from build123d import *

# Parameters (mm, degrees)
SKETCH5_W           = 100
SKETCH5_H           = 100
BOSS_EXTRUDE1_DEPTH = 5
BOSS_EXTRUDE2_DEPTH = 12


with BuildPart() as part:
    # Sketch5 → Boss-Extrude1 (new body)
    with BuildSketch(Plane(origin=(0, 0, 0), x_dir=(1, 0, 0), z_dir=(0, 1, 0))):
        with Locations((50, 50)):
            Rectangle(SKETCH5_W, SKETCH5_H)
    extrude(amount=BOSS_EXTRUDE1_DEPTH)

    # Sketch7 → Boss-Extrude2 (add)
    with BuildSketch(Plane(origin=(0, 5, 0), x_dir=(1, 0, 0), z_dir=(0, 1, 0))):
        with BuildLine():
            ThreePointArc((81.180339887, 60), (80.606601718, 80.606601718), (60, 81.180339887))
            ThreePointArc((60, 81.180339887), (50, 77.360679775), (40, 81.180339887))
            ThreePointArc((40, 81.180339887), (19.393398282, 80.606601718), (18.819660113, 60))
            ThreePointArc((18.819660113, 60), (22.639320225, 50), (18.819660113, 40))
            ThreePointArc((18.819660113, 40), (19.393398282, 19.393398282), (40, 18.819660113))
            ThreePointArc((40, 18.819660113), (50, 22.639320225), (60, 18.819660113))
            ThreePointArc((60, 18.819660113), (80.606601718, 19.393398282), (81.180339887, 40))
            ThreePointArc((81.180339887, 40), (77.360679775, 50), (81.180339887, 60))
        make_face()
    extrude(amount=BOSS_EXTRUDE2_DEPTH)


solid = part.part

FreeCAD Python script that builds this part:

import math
import FreeCAD as App
import Part
import Sketcher
from FreeCAD import Vector

doc = App.newDocument("Part")
body = doc.addObject("PartDesign::Body", "Body")

# Sketch on XZ plane
sketch1 = doc.addObject("Sketcher::SketchObject", "Sketch")
body.addObject(sketch1)
sketch1.AttachmentSupport = (doc.XZ_Plane, [""])
sketch1.MapMode = "FlatFace"
sketch1.addGeometry([
    Part.LineSegment(Vector(0, -100, 0), Vector(0, 0, 0)),
    Part.LineSegment(Vector(0, 0, 0), Vector(100, 0, 0)),
    Part.LineSegment(Vector(100, 0, 0), Vector(100, -100, 0)),
    Part.LineSegment(Vector(100, -100, 0), Vector(0, -100, 0)),
], False)
sketch1.addConstraint([
    Sketcher.Constraint("Coincident", 0, 2, 1, 1),
    Sketcher.Constraint("Coincident", 1, 2, 2, 1),
    Sketcher.Constraint("Coincident", 2, 2, 3, 1),
    Sketcher.Constraint("Coincident", 3, 2, 0, 1),
    Sketcher.Constraint("Vertical", 0),
    Sketcher.Constraint("Horizontal", 1),
    Sketcher.Constraint("Vertical", 2),
    Sketcher.Constraint("Horizontal", 3),
    Sketcher.Constraint("Coincident", 0, 2, -1, 1),
    Sketcher.Constraint("Equal", 3, 0),
    Sketcher.Constraint("DistanceX", 1, 1, 1, 2, 100.0),
])
pad1 = doc.addObject("PartDesign::Pad", "Pad")
body.addObject(pad1)
pad1.Profile = sketch1
pad1.Length = 5
pad1.Reversed = True

# Sketch on XZ plane
sketch2 = doc.addObject("Sketcher::SketchObject", "Sketch001")
body.addObject(sketch2)
sketch2.AttachmentSupport = (doc.XZ_Plane, [""])
sketch2.MapMode = "FlatFace"
sketch2.AttachmentOffset = App.Placement(Vector(0, 0, -5), App.Rotation())
sketch2.addGeometry([
    Part.ArcOfCircle(Part.Circle(Vector(70, -70, 0), Vector(0, 0, 1), 15), math.radians(-131.810315), math.radians(41.810315)),  # 0
    Part.ArcOfCircle(Part.Circle(Vector(50, -92.36068, 0), Vector(0, 0, 1), 15), math.radians(48.189685), math.radians(131.810315)),  # 1
    Part.ArcOfCircle(Part.Circle(Vector(30, -70, 0), Vector(0, 0, 1), 15), math.radians(138.189685), math.radians(311.810315)),  # 2
    Part.ArcOfCircle(Part.Circle(Vector(7.63932, -50, 0), Vector(0, 0, 1), 15), math.radians(-41.810315), math.radians(41.810315)),  # 3
    Part.ArcOfCircle(Part.Circle(Vector(30, -30, 0), Vector(0, 0, 1), 15), math.radians(48.189685), math.radians(221.810315)),  # 4
    Part.ArcOfCircle(Part.Circle(Vector(50, -7.63932, 0), Vector(0, 0, 1), 15), math.radians(-131.810315), math.radians(-48.189685)),  # 5
    Part.ArcOfCircle(Part.Circle(Vector(70, -30, 0), Vector(0, 0, 1), 15), math.radians(-41.810315), math.radians(131.810315)),  # 6
    Part.ArcOfCircle(Part.Circle(Vector(92.36068, -50, 0), Vector(0, 0, 1), 15), math.radians(138.189685), math.radians(221.810315)),  # 7
], False)
sketch2.addConstraint([
    Sketcher.Constraint("Tangent", 0, 1, 1, 1),
    Sketcher.Constraint("Tangent", 1, 2, 2, 2),
    Sketcher.Constraint("Tangent", 2, 1, 3, 1),
    Sketcher.Constraint("Tangent", 3, 2, 4, 2),
    Sketcher.Constraint("Tangent", 4, 1, 5, 1),
    Sketcher.Constraint("Tangent", 5, 2, 6, 2),
    Sketcher.Constraint("Tangent", 6, 1, 7, 1),
    Sketcher.Constraint("Tangent", 7, 2, 0, 2),
    Sketcher.Constraint("Equal", 0, 1),
    Sketcher.Constraint("Equal", 1, 2),
    Sketcher.Constraint("Equal", 2, 3),
    Sketcher.Constraint("Equal", 3, 4),
    Sketcher.Constraint("Equal", 4, 5),
    Sketcher.Constraint("Equal", 5, 6),
    Sketcher.Constraint("Equal", 6, 7),
    Sketcher.Constraint("Horizontal", 0, 3, 2, 3),
    Sketcher.Constraint("Horizontal", 4, 3, 6, 3),
    Sketcher.Constraint("Horizontal", 3, 3, 7, 3),
    Sketcher.Constraint("Vertical", 2, 3, 4, 3),
    Sketcher.Constraint("Radius", 0, 15.0),
    Sketcher.Constraint("DistanceX", -1, 1, 0, 3, 70.0),
    Sketcher.Constraint("DistanceY", 0, 3, -1, 1, 70.0),
    Sketcher.Constraint("DistanceX", -1, 1, 1, 3, 50.0),
    Sketcher.Constraint("DistanceY", 3, 3, -1, 1, 50.0),
])
pad2 = doc.addObject("PartDesign::Pad", "Pad001")
body.addObject(pad2)
pad2.Profile = sketch2
pad2.Length = 12
pad2.Reversed = True

doc.recompute()
